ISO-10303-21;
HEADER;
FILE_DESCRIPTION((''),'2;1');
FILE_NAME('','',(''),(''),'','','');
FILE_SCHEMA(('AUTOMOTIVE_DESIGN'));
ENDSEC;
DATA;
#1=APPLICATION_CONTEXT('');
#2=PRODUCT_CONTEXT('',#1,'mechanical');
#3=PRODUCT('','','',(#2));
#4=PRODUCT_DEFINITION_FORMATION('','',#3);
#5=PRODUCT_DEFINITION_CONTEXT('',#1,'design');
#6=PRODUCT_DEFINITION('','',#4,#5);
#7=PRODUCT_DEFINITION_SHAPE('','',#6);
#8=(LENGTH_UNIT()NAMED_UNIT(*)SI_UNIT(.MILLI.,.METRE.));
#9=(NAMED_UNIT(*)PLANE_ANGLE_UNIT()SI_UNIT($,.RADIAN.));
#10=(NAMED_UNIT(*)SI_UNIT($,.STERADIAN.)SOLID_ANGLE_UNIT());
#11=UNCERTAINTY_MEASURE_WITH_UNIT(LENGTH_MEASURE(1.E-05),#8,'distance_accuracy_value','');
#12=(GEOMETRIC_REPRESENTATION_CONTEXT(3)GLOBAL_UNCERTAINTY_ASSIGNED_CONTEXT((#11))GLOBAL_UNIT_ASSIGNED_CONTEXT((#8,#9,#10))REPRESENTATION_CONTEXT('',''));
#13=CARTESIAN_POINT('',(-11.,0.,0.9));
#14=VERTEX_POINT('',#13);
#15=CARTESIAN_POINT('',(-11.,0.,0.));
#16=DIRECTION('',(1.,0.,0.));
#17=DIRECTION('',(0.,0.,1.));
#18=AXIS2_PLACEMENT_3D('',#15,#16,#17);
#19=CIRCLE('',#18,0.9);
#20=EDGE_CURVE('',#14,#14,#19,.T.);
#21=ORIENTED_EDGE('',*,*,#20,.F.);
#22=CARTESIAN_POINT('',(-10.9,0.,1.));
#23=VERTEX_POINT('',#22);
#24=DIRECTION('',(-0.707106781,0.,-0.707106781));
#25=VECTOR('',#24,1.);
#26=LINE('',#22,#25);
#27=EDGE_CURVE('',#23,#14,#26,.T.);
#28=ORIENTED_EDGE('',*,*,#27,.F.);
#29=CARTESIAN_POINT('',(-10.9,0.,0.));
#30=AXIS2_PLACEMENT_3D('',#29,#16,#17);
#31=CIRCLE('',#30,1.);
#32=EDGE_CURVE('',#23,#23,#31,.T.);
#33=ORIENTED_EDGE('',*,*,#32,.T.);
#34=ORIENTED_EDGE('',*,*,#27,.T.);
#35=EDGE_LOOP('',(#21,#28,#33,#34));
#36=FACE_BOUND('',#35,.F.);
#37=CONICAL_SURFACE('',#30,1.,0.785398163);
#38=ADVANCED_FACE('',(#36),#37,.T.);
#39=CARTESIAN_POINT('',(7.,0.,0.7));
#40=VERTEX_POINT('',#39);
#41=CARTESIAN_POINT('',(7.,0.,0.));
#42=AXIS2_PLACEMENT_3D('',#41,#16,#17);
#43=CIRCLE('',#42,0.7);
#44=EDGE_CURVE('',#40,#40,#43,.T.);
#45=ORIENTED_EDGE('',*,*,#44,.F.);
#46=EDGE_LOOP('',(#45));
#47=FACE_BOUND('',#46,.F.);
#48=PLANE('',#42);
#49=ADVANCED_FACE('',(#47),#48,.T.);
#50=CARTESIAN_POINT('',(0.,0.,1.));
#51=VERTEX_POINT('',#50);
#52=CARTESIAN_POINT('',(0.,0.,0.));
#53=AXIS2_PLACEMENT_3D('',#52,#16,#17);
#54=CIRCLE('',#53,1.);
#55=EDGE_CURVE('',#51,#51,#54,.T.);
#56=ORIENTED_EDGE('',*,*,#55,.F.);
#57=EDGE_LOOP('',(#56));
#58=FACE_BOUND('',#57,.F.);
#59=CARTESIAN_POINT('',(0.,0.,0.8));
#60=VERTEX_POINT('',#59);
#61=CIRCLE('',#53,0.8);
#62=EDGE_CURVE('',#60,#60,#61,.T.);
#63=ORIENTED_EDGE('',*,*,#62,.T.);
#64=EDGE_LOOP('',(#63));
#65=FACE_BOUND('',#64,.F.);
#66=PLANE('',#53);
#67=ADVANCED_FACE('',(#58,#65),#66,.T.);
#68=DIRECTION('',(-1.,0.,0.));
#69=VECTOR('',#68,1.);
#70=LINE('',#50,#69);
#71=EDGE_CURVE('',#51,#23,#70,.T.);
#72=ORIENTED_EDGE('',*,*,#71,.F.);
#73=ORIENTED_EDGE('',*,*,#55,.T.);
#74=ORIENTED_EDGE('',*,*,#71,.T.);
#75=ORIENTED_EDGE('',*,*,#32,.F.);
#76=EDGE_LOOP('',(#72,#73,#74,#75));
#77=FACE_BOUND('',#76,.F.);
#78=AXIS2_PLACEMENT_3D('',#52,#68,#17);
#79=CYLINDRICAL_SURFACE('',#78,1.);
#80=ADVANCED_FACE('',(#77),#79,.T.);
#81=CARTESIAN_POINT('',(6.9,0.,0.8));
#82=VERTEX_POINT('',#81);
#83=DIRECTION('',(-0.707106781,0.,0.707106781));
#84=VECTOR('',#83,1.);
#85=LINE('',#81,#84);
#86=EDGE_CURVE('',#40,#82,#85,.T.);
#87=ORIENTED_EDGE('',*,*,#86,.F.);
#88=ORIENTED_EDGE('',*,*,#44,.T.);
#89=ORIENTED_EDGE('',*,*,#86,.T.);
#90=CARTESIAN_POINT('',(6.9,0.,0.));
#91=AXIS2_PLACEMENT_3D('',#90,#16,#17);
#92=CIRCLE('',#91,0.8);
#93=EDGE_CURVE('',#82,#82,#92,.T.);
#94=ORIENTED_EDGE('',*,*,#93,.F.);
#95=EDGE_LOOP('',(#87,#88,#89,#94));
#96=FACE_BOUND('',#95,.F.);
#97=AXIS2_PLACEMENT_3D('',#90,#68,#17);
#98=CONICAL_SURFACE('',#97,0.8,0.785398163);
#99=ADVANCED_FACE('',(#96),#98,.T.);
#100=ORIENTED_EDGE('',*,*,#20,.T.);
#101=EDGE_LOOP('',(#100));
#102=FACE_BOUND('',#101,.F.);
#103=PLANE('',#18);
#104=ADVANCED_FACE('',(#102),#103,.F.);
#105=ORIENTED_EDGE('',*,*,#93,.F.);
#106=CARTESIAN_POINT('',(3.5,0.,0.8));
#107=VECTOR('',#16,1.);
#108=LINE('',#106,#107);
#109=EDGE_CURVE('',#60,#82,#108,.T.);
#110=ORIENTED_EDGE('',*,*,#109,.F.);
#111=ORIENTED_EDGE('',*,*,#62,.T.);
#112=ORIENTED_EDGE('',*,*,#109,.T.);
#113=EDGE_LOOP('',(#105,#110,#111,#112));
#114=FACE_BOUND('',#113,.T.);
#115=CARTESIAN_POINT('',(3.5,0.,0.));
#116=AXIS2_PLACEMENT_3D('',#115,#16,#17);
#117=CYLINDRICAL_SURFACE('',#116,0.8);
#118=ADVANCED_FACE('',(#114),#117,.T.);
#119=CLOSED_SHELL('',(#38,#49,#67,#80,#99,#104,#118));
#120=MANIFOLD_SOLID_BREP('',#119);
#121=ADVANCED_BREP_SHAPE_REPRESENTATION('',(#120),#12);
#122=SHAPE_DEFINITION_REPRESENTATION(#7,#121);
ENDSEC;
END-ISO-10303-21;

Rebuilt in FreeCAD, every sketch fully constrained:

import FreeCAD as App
import Part
import Sketcher
from FreeCAD import Vector
Q = App.Units.Quantity


def edges_at(feature, points):
    """Names of the edges that pass closest to the given points."""
    edges = feature.Shape.Edges
    near = lambda p: min(range(len(edges)), key=lambda i: edges[i].distToShape(Part.Vertex(*p))[0])
    return sorted({f"Edge{near(p) + 1}" for p in points})


def add_polygon(sketch, points):
    """Adds a closed chain of lines whose ends are joined by coincident constraints."""
    first, n = sketch.GeometryCount, len(points)
    for a, b in zip(points, points[1:] + points[:1]):
        sketch.addGeometry(Part.LineSegment(App.Vector(*a, 0), App.Vector(*b, 0)), False)
    for i in range(n):
        sketch.addConstraint(Sketcher.Constraint("Coincident", first + i, 2, first + (i + 1) % n, 1))

doc = App.newDocument("Part")
params = doc.addObject("Spreadsheet::Sheet", "Params")
for row, (alias, value) in enumerate([
    ("sketch1_width", "11 mm"),
    ("sketch1_width2", "18 mm"),
    ("sketch1_height", "1 mm"),
    ("sketch1_height2", "0.8 mm"),
    ("revolution_angle", "360 deg"),
    ("chamfer_size", "0.1 mm"),
], start=1):
    params.set(f"A{row}", alias)
    params.set(f"B{row}", "=" + value)
    params.setAlias(f"B{row}", alias)

body = doc.addObject("PartDesign::Body", "Body")

# Sketch on XZ plane
sketch1 = doc.addObject("Sketcher::SketchObject", "Sketch")
body.addObject(sketch1)
sketch1.AttachmentSupport = (doc.XZ_Plane, [""])
sketch1.MapMode = "FlatFace"
add_polygon(sketch1, [(0, 1), (-11, 1), (-11, 0), (7, 0), (7, 0.8), (0, 0.8)])  # lines 0-5
sketch1.addConstraint([
    Sketcher.Constraint("Horizontal", 0),
    Sketcher.Constraint("Vertical", 1),
    Sketcher.Constraint("Horizontal", 2),
    Sketcher.Constraint("Vertical", 3),
    Sketcher.Constraint("Horizontal", 4),
    Sketcher.Constraint("Vertical", 5),
    Sketcher.Constraint("PointOnObject", 1, 2, -1),
    Sketcher.Constraint("PointOnObject", 4, 2, -2),
    Sketcher.Constraint("DistanceX", 0, 2, 0, 1, Q("11 mm")),
    Sketcher.Constraint("DistanceX", 2, 1, 2, 2, Q("18 mm")),
    Sketcher.Constraint("DistanceY", 1, 2, 1, 1, Q("1 mm")),
    Sketcher.Constraint("DistanceY", 3, 1, 3, 2, Q("0.8 mm")),
])
sketch1.setExpression("Constraints[14]", "Params.sketch1_width")
sketch1.setExpression("Constraints[15]", "Params.sketch1_width2")
sketch1.setExpression("Constraints[16]", "Params.sketch1_height")
sketch1.setExpression("Constraints[17]", "Params.sketch1_height2")
revolution = doc.addObject("PartDesign::Revolution", "Revolution")
body.addObject(revolution)
revolution.Profile = sketch1
revolution.ReferenceAxis = (sketch1, ["H_Axis"])
revolution.setExpression("Angle", "Params.revolution_angle")
doc.recompute()

chamfer = doc.addObject("PartDesign::Chamfer", "Chamfer")
body.addObject(chamfer)
chamfer.Base = (revolution, edges_at(revolution, [(-11, 0, -1), (7, 0, -0.8)]))
chamfer.setExpression("Size", "Params.chamfer_size")

doc.recompute()
